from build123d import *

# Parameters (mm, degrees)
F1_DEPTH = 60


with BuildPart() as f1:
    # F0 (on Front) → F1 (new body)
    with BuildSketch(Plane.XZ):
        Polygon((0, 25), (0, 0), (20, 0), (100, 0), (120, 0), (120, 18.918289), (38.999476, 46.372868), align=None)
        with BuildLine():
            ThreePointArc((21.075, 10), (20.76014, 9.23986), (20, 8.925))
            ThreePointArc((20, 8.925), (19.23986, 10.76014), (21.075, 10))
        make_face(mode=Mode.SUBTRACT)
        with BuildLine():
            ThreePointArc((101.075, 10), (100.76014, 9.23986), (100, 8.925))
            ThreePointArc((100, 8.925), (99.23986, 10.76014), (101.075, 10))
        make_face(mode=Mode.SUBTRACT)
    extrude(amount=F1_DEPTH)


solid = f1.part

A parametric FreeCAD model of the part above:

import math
import FreeCAD as App
import Part
import Sketcher
from FreeCAD import Vector

doc = App.newDocument("Part")
body = doc.addObject("PartDesign::Body", "Body")

# Sketch on XZ plane
sketch1 = body.newObject("Sketcher::SketchObject", "Sketch")
sketch1.AttachmentSupport = (doc.getObject("XZ_Plane"), [""])
sketch1.MapMode = "FlatFace"
sketch1.addGeometry(Part.LineSegment(Vector(0, 25, 0), Vector(0, 0, 0)), False)
sketch1.addGeometry(Part.LineSegment(Vector(0, 0, 0), Vector(120, 0, 0)), False)
sketch1.addGeometry(Part.LineSegment(Vector(120, 0, 0), Vector(120, 18.9, 0)), False)
sketch1.addGeometry(Part.LineSegment(Vector(120, 18.9, 0), Vector(39, 46.4, 0)), False)
sketch1.addGeometry(Part.LineSegment(Vector(39, 46.4, 0), Vector(0, 25, 0)), False)
sketch1.addGeometry(Part.ArcOfCircle(Part.Circle(Vector(20, 10, 0), Vector(0, 0, 1), 1.1), math.radians(0), math.radians(270)), False)
sketch1.addGeometry(Part.ArcOfCircle(Part.Circle(Vector(20, 10, 0), Vector(0, 0, 1), 1.1), math.radians(-90), math.radians(0)), False)
sketch1.addGeometry(Part.ArcOfCircle(Part.Circle(Vector(100, 10, 0), Vector(0, 0, 1), 1.1), math.radians(0), math.radians(270)), False)
sketch1.addGeometry(Part.ArcOfCircle(Part.Circle(Vector(100, 10, 0), Vector(0, 0, 1), 1.1), math.radians(-90), math.radians(0)), False)
sketch1.addConstraint(Sketcher.Constraint("Coincident", 0, 2, 1, 1))
sketch1.addConstraint(Sketcher.Constraint("Coincident", 1, 2, 2, 1))
sketch1.addConstraint(Sketcher.Constraint("Coincident", 2, 2, 3, 1))
sketch1.addConstraint(Sketcher.Constraint("Coincident", 3, 2, 4, 1))
sketch1.addConstraint(Sketcher.Constraint("Coincident", 4, 2, 0, 1))
sketch1.addConstraint(Sketcher.Constraint("Tangent", 5, 1, 6, 2))
sketch1.addConstraint(Sketcher.Constraint("Coincident", 6, 1, 5, 2))
sketch1.addConstraint(Sketcher.Constraint("Tangent", 7, 1, 8, 2))
sketch1.addConstraint(Sketcher.Constraint("Coincident", 8, 1, 7, 2))
sketch1.addConstraint(Sketcher.Constraint("Vertical", 0))
sketch1.addConstraint(Sketcher.Constraint("Horizontal", 1))
sketch1.addConstraint(Sketcher.Constraint("Vertical", 2))
sketch1.addConstraint(Sketcher.Constraint("Coincident", 0, 2, -1, 1))
sketch1.addConstraint(Sketcher.Constraint("Equal", 6, 7))
sketch1.addConstraint(Sketcher.Constraint("Horizontal", 6, 3, 7, 3))
sketch1.addConstraint(Sketcher.Constraint("Horizontal", 8, 3, 5, 1))
sketch1.addConstraint(Sketcher.Constraint("Horizontal", 5, 1, 7, 1))
sketch1.addConstraint(Sketcher.Constraint("Vertical", 5, 3, 6, 1))
sketch1.addConstraint(Sketcher.Constraint("Vertical", 7, 3, 8, 1))
sketch1.addConstraint(Sketcher.Constraint("DistanceX", 1, 1, 1, 2, 120.0))
sketch1.addConstraint(Sketcher.Constraint("DistanceY", 0, 2, 0, 1, 25.0))
sketch1.addConstraint(Sketcher.Constraint("DistanceX", -1, 1, 5, 3, 20.0))
sketch1.addConstraint(Sketcher.Constraint("DistanceY", -1, 1, 5, 3, 10.0))
sketch1.addConstraint(Sketcher.Constraint("DistanceX", -1, 1, 7, 3, 100.0))
sketch1.addConstraint(Sketcher.Constraint("Radius", 5, 1.075))
sketch1.addConstraint(Sketcher.Constraint("Distance", 4, 44.471998))
sketch1.addConstraint(Sketcher.Constraint("DistanceY", 2, 1, 2, 2, 18.918289))
sketch1.addConstraint(Sketcher.Constraint("Distance", 3, 85.526831))
pad1 = body.newObject("PartDesign::Pad", "Pad")
pad1.Profile = sketch1
pad1.Length = 60

doc.recompute()
